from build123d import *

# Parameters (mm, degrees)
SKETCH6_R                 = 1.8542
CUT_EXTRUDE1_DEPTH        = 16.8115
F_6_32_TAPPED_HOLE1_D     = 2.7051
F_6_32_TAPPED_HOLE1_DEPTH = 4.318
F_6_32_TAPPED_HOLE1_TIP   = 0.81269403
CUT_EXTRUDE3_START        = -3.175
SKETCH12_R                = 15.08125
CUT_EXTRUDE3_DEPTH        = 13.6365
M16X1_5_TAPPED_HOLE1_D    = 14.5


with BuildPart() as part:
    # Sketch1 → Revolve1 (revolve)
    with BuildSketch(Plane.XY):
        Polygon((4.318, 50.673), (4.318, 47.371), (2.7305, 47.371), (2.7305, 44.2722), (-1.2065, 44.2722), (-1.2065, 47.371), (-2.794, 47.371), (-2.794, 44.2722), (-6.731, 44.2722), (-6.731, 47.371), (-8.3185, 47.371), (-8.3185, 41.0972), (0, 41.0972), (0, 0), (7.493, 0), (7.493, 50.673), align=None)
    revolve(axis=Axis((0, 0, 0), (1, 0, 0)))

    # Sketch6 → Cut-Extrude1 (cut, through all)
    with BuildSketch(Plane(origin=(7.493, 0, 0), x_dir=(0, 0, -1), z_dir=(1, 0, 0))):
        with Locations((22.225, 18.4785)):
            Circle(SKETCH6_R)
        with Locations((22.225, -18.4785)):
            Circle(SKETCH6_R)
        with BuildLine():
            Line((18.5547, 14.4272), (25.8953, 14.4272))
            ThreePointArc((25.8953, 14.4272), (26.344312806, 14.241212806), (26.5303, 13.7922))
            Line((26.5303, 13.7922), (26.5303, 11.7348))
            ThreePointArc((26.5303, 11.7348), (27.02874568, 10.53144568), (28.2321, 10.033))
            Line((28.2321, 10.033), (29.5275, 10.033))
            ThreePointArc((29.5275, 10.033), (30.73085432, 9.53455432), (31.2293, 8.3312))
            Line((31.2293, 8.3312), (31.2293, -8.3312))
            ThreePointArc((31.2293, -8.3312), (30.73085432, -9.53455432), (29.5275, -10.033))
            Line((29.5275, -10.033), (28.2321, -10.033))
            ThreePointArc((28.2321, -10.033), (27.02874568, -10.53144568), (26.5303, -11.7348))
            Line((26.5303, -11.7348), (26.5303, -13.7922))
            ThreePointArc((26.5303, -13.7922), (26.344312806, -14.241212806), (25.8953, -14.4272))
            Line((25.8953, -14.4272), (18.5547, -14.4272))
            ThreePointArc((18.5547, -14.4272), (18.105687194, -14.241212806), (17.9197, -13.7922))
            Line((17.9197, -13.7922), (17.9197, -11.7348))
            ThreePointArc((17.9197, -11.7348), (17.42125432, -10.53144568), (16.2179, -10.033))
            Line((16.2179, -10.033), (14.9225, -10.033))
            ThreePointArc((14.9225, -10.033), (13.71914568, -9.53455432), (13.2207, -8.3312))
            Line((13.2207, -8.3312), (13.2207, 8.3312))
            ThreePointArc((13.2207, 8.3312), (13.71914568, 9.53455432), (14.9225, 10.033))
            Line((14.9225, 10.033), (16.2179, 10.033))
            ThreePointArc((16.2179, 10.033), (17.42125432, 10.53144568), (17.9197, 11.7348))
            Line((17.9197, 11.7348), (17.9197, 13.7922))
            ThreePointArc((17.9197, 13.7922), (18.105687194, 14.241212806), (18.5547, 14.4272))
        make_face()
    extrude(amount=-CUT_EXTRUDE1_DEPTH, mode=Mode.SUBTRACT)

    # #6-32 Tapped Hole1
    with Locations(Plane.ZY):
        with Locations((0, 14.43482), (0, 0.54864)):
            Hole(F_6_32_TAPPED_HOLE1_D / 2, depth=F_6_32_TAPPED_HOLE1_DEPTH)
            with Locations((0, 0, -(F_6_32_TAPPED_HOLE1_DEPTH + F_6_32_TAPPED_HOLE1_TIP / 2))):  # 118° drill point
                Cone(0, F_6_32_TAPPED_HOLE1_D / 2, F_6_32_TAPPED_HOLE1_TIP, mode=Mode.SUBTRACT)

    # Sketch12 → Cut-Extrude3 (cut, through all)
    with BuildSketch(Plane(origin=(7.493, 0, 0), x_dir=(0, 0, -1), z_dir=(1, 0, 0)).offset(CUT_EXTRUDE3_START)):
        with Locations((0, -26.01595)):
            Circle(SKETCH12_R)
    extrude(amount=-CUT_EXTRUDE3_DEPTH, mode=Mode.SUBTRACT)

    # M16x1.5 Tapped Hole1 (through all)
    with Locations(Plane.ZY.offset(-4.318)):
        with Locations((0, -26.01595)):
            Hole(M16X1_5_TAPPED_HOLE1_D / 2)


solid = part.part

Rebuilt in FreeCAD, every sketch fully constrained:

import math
import FreeCAD as App
import Part
import Sketcher

V = App.Vector
Q = App.Units.Quantity

doc = App.newDocument("Part")
body = doc.addObject("PartDesign::Body", "Body")

# Sketch on XY plane
sketch1 = body.newObject("Sketcher::SketchObject", "Sketch")
sketch1.AttachmentSupport = (doc.getObject("XY_Plane"), [""])
sketch1.MapMode = "FlatFace"
sketch1.addGeometry(Part.LineSegment(V(4.3, 50.7, 0), V(4.3, 47.4, 0)), False)
sketch1.addGeometry(Part.LineSegment(V(4.3, 47.4, 0), V(2.7, 47.4, 0)), False)
sketch1.addGeometry(Part.LineSegment(V(2.7, 47.4, 0), V(2.7, 44.3, 0)), False)
sketch1.addGeometry(Part.LineSegment(V(2.7, 44.3, 0), V(-1.2, 44.3, 0)), False)
sketch1.addGeometry(Part.LineSegment(V(-1.2, 44.3, 0), V(-1.2, 47.4, 0)), False)
sketch1.addGeometry(Part.LineSegment(V(-1.2, 47.4, 0), V(-2.8, 47.4, 0)), False)
sketch1.addGeometry(Part.LineSegment(V(-2.8, 47.4, 0), V(-2.8, 44.3, 0)), False)
sketch1.addGeometry(Part.LineSegment(V(-2.8, 44.3, 0), V(-6.7, 44.3, 0)), False)
sketch1.addGeometry(Part.LineSegment(V(-6.7, 44.3, 0), V(-6.7, 47.4, 0)), False)
sketch1.addGeometry(Part.LineSegment(V(-6.7, 47.4, 0), V(-8.3, 47.4, 0)), False)
sketch1.addGeometry(Part.LineSegment(V(-8.3, 47.4, 0), V(-8.3, 41.1, 0)), False)
sketch1.addGeometry(Part.LineSegment(V(-8.3, 41.1, 0), V(0, 41.1, 0)), False)
sketch1.addGeometry(Part.LineSegment(V(0, 41.1, 0), V(0, 0, 0)), False)
sketch1.addGeometry(Part.LineSegment(V(0, 0, 0), V(7.5, 0, 0)), False)
sketch1.addGeometry(Part.LineSegment(V(7.5, 0, 0), V(7.5, 50.7, 0)), False)
sketch1.addGeometry(Part.LineSegment(V(7.5, 50.7, 0), V(4.3, 50.7, 0)), False)
sketch1.addConstraint(Sketcher.Constraint("Coincident", 0, 2, 1, 1))
sketch1.addConstraint(Sketcher.Constraint("Coincident", 1, 2, 2, 1))
sketch1.addConstraint(Sketcher.Constraint("Coincident", 2, 2, 3, 1))
sketch1.addConstraint(Sketcher.Constraint("Coincident", 3, 2, 4, 1))
sketch1.addConstraint(Sketcher.Constraint("Coincident", 4, 2, 5, 1))
sketch1.addConstraint(Sketcher.Constraint("Coincident", 5, 2, 6, 1))
sketch1.addConstraint(Sketcher.Constraint("Coincident", 6, 2, 7, 1))
sketch1.addConstraint(Sketcher.Constraint("Coincident", 7, 2, 8, 1))
sketch1.addConstraint(Sketcher.Constraint("Coincident", 8, 2, 9, 1))
sketch1.addConstraint(Sketcher.Constraint("Coincident", 9, 2, 10, 1))
sketch1.addConstraint(Sketcher.Constraint("Coincident", 10, 2, 11, 1))
sketch1.addConstraint(Sketcher.Constraint("Coincident", 11, 2, 12, 1))
sketch1.addConstraint(Sketcher.Constraint("Coincident", 12, 2, 13, 1))
sketch1.addConstraint(Sketcher.Constraint("Coincident", 13, 2, 14, 1))
sketch1.addConstraint(Sketcher.Constraint("Coincident", 14, 2, 15, 1))
sketch1.addConstraint(Sketcher.Constraint("Coincident", 15, 2, 0, 1))
sketch1.addConstraint(Sketcher.Constraint("Vertical", 0))
sketch1.addConstraint(Sketcher.Constraint("Horizontal", 1))
sketch1.addConstraint(Sketcher.Constraint("Vertical", 2))
sketch1.addConstraint(Sketcher.Constraint("Horizontal", 3))
sketch1.addConstraint(Sketcher.Constraint("Vertical", 4))
sketch1.addConstraint(Sketcher.Constraint("Horizontal", 5))
sketch1.addConstraint(Sketcher.Constraint("Vertical", 6))
sketch1.addConstraint(Sketcher.Constraint("Horizontal", 7))
sketch1.addConstraint(Sketcher.Constraint("Vertical", 8))
sketch1.addConstraint(Sketcher.Constraint("Horizontal", 9))
sketch1.addConstraint(Sketcher.Constraint("Vertical", 10))
sketch1.addConstraint(Sketcher.Constraint("Horizontal", 11))
sketch1.addConstraint(Sketcher.Constraint("Vertical", 12))
sketch1.addConstraint(Sketcher.Constraint("Horizontal", 13))
sketch1.addConstraint(Sketcher.Constraint("Vertical", 14))
sketch1.addConstraint(Sketcher.Constraint("Horizontal", 15))
sketch1.addConstraint(Sketcher.Constraint("Coincident", 12, 2, -1, 1))
sketch1.addConstraint(Sketcher.Constraint("Horizontal", 1, 2, 4, 2))
sketch1.addConstraint(Sketcher.Constraint("Horizontal", 3, 2, 6, 2))
sketch1.addConstraint(Sketcher.Constraint("Horizontal", 5, 2, 8, 2))
sketch1.addConstraint(Sketcher.Constraint("Equal", 1, 5))
sketch1.addConstraint(Sketcher.Constraint("Equal", 3, 7))
sketch1.addConstraint(Sketcher.Constraint("Equal", 5, 9))
sketch1.addConstraint(Sketcher.Constraint("DistanceY", 0, 2, 0, 1, Q("0.13 in")))
sketch1.addConstraint(Sketcher.Constraint("DistanceX", 1, 2, 1, 1, Q("0.0625 in")))
sketch1.addConstraint(Sketcher.Constraint("DistanceX", 3, 2, 3, 1, Q("0.155 in")))
sketch1.addConstraint(Sketcher.Constraint("DistanceX", 13, 1, 13, 2, Q("0.295 in")))
sketch1.addConstraint(Sketcher.Constraint("DistanceX", 15, 2, 15, 1, Q("0.125 in")))
sketch1.addConstraint(Sketcher.Constraint("DistanceY", 2, 2, 2, 1, Q("0.122 in")))
sketch1.addConstraint(Sketcher.Constraint("DistanceY", 10, 2, 10, 1, Q("0.247 in")))
sketch1.addConstraint(Sketcher.Constraint("DistanceY", 12, 2, 12, 1, Q("1.618 in")))
revolution = body.newObject("PartDesign::Revolution", "Revolution")
revolution.Profile = sketch1
revolution.ReferenceAxis = (sketch1, ["H_Axis"])
revolution.Angle = 360

# Sketch on YZ plane
sketch2 = body.newObject("Sketcher::SketchObject", "Sketch001")
sketch2.AttachmentSupport = (doc.getObject("YZ_Plane"), [""])
sketch2.MapMode = "FlatFace"
sketch2.AttachmentOffset = App.Placement(V(0, 0, 0.295 * 25.4), App.Rotation())
sketch2.addGeometry(Part.Circle(V(18.5, -22.2, 0), V(0, 0, 1), 1.9), False)
sketch2.addGeometry(Part.Circle(V(-18.5, -22.2, 0), V(0, 0, 1), 1.9), False)
sketch2.addGeometry(Part.LineSegment(V(14.4, -25.9, 0), V(14.4, -18.6, 0)), False)
sketch2.addGeometry(Part.ArcOfCircle(Part.Circle(V(13.8, -18.6, 0), V(0, 0, 1), 0.6), math.radians(0), math.radians(90)), False)
sketch2.addGeometry(Part.LineSegment(V(13.8, -17.9, 0), V(11.7, -17.9, 0)), False)
sketch2.addGeometry(Part.ArcOfCircle(Part.Circle(V(11.7, -16.2, 0), V(0, 0, 1), 1.7), math.radians(-180), math.radians(-90)), False)
sketch2.addGeometry(Part.LineSegment(V(10, -16.2, 0), V(10, -14.9, 0)), False)
sketch2.addGeometry(Part.ArcOfCircle(Part.Circle(V(8.3, -14.9, 0), V(0, 0, 1), 1.7), math.radians(0), math.radians(90)), False)
sketch2.addGeometry(Part.LineSegment(V(8.3, -13.2, 0), V(-8.3, -13.2, 0)), False)
sketch2.addGeometry(Part.ArcOfCircle(Part.Circle(V(-8.3, -14.9, 0), V(0, 0, 1), 1.7), math.radians(90), math.radians(180)), False)
sketch2.addGeometry(Part.LineSegment(V(-10, -14.9, 0), V(-10, -16.2, 0)), False)
sketch2.addGeometry(Part.ArcOfCircle(Part.Circle(V(-11.7, -16.2, 0), V(0, 0, 1), 1.7), math.radians(-90), math.radians(0)), False)
sketch2.addGeometry(Part.LineSegment(V(-11.7, -17.9, 0), V(-13.8, -17.9, 0)), False)
sketch2.addGeometry(Part.ArcOfCircle(Part.Circle(V(-13.8, -18.6, 0), V(0, 0, 1), 0.6), math.radians(90), math.radians(180)), False)
sketch2.addGeometry(Part.LineSegment(V(-14.4, -18.6, 0), V(-14.4, -25.9, 0)), False)
sketch2.addGeometry(Part.ArcOfCircle(Part.Circle(V(-13.8, -25.9, 0), V(0, 0, 1), 0.6), math.radians(180), math.radians(270)), False)
sketch2.addGeometry(Part.LineSegment(V(-13.8, -26.5, 0), V(-11.7, -26.5, 0)), False)
sketch2.addGeometry(Part.ArcOfCircle(Part.Circle(V(-11.7, -28.2, 0), V(0, 0, 1), 1.7), math.radians(0), math.radians(90)), False)
sketch2.addGeometry(Part.LineSegment(V(-10, -28.2, 0), V(-10, -29.5, 0)), False)
sketch2.addGeometry(Part.ArcOfCircle(Part.Circle(V(-8.3, -29.5, 0), V(0, 0, 1), 1.7), math.radians(-180), math.radians(-90)), False)
sketch2.addGeometry(Part.LineSegment(V(-8.3, -31.2, 0), V(8.3, -31.2, 0)), False)
sketch2.addGeometry(Part.ArcOfCircle(Part.Circle(V(8.3, -29.5, 0), V(0, 0, 1), 1.7), math.radians(-90), math.radians(0)), False)
sketch2.addGeometry(Part.LineSegment(V(10, -29.5, 0), V(10, -28.2, 0)), False)
sketch2.addGeometry(Part.ArcOfCircle(Part.Circle(V(11.7, -28.2, 0), V(0, 0, 1), 1.7), math.radians(90), math.radians(180)), False)
sketch2.addGeometry(Part.LineSegment(V(11.7, -26.5, 0), V(13.8, -26.5, 0)), False)
sketch2.addGeometry(Part.ArcOfCircle(Part.Circle(V(13.8, -25.9, 0), V(0, 0, 1), 0.6), math.radians(-90), math.radians(0)), False)
sketch2.addConstraint(Sketcher.Constraint("Tangent", 2, 2, 3, 1))
sketch2.addConstraint(Sketcher.Constraint("Tangent", 3, 2, 4, 1))
sketch2.addConstraint(Sketcher.Constraint("Tangent", 4, 2, 5, 2))
sketch2.addConstraint(Sketcher.Constraint("Tangent", 5, 1, 6, 1))
sketch2.addConstraint(Sketcher.Constraint("Tangent", 6, 2, 7, 1))
sketch2.addConstraint(Sketcher.Constraint("Tangent", 7, 2, 8, 1))
sketch2.addConstraint(Sketcher.Constraint("Tangent", 8, 2, 9, 1))
sketch2.addConstraint(Sketcher.Constraint("Tangent", 9, 2, 10, 1))
sketch2.addConstraint(Sketcher.Constraint("Tangent", 10, 2, 11, 2))
sketch2.addConstraint(Sketcher.Constraint("Tangent", 11, 1, 12, 1))
sketch2.addConstraint(Sketcher.Constraint("Tangent", 12, 2, 13, 1))
sketch2.addConstraint(Sketcher.Constraint("Tangent", 13, 2, 14, 1))
sketch2.addConstraint(Sketcher.Constraint("Tangent", 14, 2, 15, 1))
sketch2.addConstraint(Sketcher.Constraint("Tangent", 15, 2, 16, 1))
sketch2.addConstraint(Sketcher.Constraint("Tangent", 16, 2, 17, 2))
sketch2.addConstraint(Sketcher.Constraint("Tangent", 17, 1, 18, 1))
sketch2.addConstraint(Sketcher.Constraint("Tangent", 18, 2, 19, 1))
sketch2.addConstraint(Sketcher.Constraint("Tangent", 19, 2, 20, 1))
sketch2.addConstraint(Sketcher.Constraint("Tangent", 20, 2, 21, 1))
sketch2.addConstraint(Sketcher.Constraint("Tangent", 21, 2, 22, 1))
sketch2.addConstraint(Sketcher.Constraint("Tangent", 22, 2, 23, 2))
sketch2.addConstraint(Sketcher.Constraint("Tangent", 23, 1, 24, 1))
sketch2.addConstraint(Sketcher.Constraint("Tangent", 24, 2, 25, 1))
sketch2.addConstraint(Sketcher.Constraint("Tangent", 25, 2, 2, 1))
sketch2.addConstraint(Sketcher.Constraint("Vertical", 2))
sketch2.addConstraint(Sketcher.Constraint("Horizontal", 4))
sketch2.addConstraint(Sketcher.Constraint("Vertical", 6))
sketch2.addConstraint(Sketcher.Constraint("Horizontal", 8))
sketch2.addConstraint(Sketcher.Constraint("Vertical", 10))
sketch2.addConstraint(Sketcher.Constraint("Horizontal", 12))
sketch2.addConstraint(Sketcher.Constraint("Vertical", 14))
sketch2.addConstraint(Sketcher.Constraint("Horizontal", 16))
sketch2.addConstraint(Sketcher.Constraint("Vertical", 18))
sketch2.addConstraint(Sketcher.Constraint("Horizontal", 20))
sketch2.addConstraint(Sketcher.Constraint("Vertical", 22))
sketch2.addConstraint(Sketcher.Constraint("Horizontal", 24))
sketch2.addConstraint(Sketcher.Constraint("Equal", 0, 1))
sketch2.addConstraint(Sketcher.Constraint("Equal", 5, 7))
sketch2.addConstraint(Sketcher.Constraint("Equal", 7, 9))
sketch2.addConstraint(Sketcher.Constraint("Equal", 9, 11))
sketch2.addConstraint(Sketcher.Constraint("Equal", 3, 13))
sketch2.addConstraint(Sketcher.Constraint("Equal", 13, 15))
sketch2.addConstraint(Sketcher.Constraint("Equal", 11, 17))
sketch2.addConstraint(Sketcher.Constraint("Equal", 17, 19))
sketch2.addConstraint(Sketcher.Constraint("Equal", 19, 21))
sketch2.addConstraint(Sketcher.Constraint("Equal", 21, 23))
sketch2.addConstraint(Sketcher.Constraint("Equal", 15, 25))
sketch2.addConstraint(Sketcher.Constraint("Symmetric", 0, 3, 1, 3, -2))
sketch2.addConstraint(Sketcher.Constraint("Symmetric", 5, 3, 11, 3, -2))
sketch2.addConstraint(Sketcher.Constraint("Symmetric", 17, 3, 23, 3, -2))
sketch2.addConstraint(Sketcher.Constraint("Vertical", 11, 3, 17, 3))
sketch2.addConstraint(Sketcher.Constraint("Equal", 4, 12))
sketch2.addConstraint(Sketcher.Constraint("Equal", 10, 18))
sketch2.addConstraint(Sketcher.Constraint("Diameter", 0, Q("0.146 in")))
sketch2.addConstraint(Sketcher.Constraint("Radius", 3, Q("0.025 in")))
sketch2.addConstraint(Sketcher.Constraint("Radius", 5, Q("0.067 in")))
sketch2.addConstraint(Sketcher.Constraint("DistanceX", 4, 2, 4, 1, Q("0.081 in")))
sketch2.addConstraint(Sketcher.Constraint("DistanceX", 8, 2, 8, 1, Q("0.656 in")))
sketch2.addConstraint(Sketcher.Constraint("DistanceY", 2, 1, 2, 2, Q("0.289 in")))
sketch2.addConstraint(Sketcher.Constraint("DistanceY", 6, 1, 6, 2, Q("0.051 in")))
sketch2.addConstraint(Sketcher.Constraint("DistanceY", 0, 3, -1, 1, Q("0.875 in")))
sketch2.addConstraint(Sketcher.Constraint("DistanceX", 1, 3, 0, 3, Q("1.455 in")))
sketch2.addConstraint(Sketcher.Constraint("DistanceY", 3, 3, -1, 1, Q("0.7305 in")))
pocket1 = body.newObject("PartDesign::Pocket", "Pocket")
pocket1.Profile = sketch2
pocket1.Type = "ThroughAll"

# Sketch on YZ plane
sketch3 = body.newObject("Sketcher::SketchObject", "Sketch002")
sketch3.AttachmentSupport = (doc.getObject("YZ_Plane"), [""])
sketch3.MapMode = "FlatFace"
sketch3.addGeometry(Part.Circle(V(14.4, 0, 0), V(0, 0, 1), 1.4), False)
sketch3.addGeometry(Part.Circle(V(0.5, 0, 0), V(0, 0, 1), 1.4), False)
sketch3.addConstraint(Sketcher.Constraint("Equal", 0, 1))
sketch3.addConstraint(Sketcher.Constraint("PointOnObject", 0, 3, -1))
sketch3.addConstraint(Sketcher.Constraint("PointOnObject", 1, 3, -1))
sketch3.addConstraint(Sketcher.Constraint("Diameter", 0, Q("0.1065 in")))
sketch3.addConstraint(Sketcher.Constraint("DistanceX", -1, 1, 0, 3, Q("0.5683 in")))
sketch3.addConstraint(Sketcher.Constraint("DistanceX", -1, 1, 1, 3, Q("0.0216 in")))
doc.recompute()
hole = body.newObject("PartDesign::Hole", "Hole")
hole.Profile = sketch3
hole.ThreadType = "None"
hole.Diameter = Q("0.1065 in")
hole.DepthType = "Dimension"
hole.Depth = Q("0.17 in")
hole.DrillPoint = "Angled"
hole.DrillPointAngle = 118
hole.Reversed = True

# Sketch on YZ plane
sketch4 = body.newObject("Sketcher::SketchObject", "Sketch003")
sketch4.AttachmentSupport = (doc.getObject("YZ_Plane"), [""])
sketch4.MapMode = "FlatFace"
sketch4.AttachmentOffset = App.Placement(V(0, 0, 0.17 * 25.4), App.Rotation())
sketch4.addGeometry(Part.Circle(V(-26, 0, 0), V(0, 0, 1), 15), False)
sketch4.addConstraint(Sketcher.Constraint("PointOnObject", 0, 3, -1))
sketch4.addConstraint(Sketcher.Constraint("Diameter", 0, Q("1.1875 in")))
sketch4.addConstraint(Sketcher.Constraint("DistanceX", 0, 3, -1, 1, 26.01595))
pocket2 = body.newObject("PartDesign::Pocket", "Pocket001")
pocket2.Profile = sketch4
pocket2.Type = "ThroughAll"

# Sketch on YZ plane
sketch5 = body.newObject("Sketcher::SketchObject", "Sketch004")
sketch5.AttachmentSupport = (doc.getObject("YZ_Plane"), [""])
sketch5.MapMode = "FlatFace"
sketch5.AttachmentOffset = App.Placement(V(0, 0, 0.17 * 25.4), App.Rotation())
sketch5.addGeometry(Part.Circle(V(-26, 0, 0), V(0, 0, 1), 7), False)
sketch5.addConstraint(Sketcher.Constraint("PointOnObject", 0, 3, -1))
sketch5.addConstraint(Sketcher.Constraint("Diameter", 0, 14.5))
sketch5.addConstraint(Sketcher.Constraint("DistanceX", 0, 3, -1, 1, 26.01595))
doc.recompute()
hole2 = body.newObject("PartDesign::Hole", "Hole001")
hole2.Profile = sketch5
hole2.ThreadType = "None"
hole2.Diameter = 14.5
hole2.DepthType = "ThroughAll"
hole2.Reversed = True

doc.recompute()
